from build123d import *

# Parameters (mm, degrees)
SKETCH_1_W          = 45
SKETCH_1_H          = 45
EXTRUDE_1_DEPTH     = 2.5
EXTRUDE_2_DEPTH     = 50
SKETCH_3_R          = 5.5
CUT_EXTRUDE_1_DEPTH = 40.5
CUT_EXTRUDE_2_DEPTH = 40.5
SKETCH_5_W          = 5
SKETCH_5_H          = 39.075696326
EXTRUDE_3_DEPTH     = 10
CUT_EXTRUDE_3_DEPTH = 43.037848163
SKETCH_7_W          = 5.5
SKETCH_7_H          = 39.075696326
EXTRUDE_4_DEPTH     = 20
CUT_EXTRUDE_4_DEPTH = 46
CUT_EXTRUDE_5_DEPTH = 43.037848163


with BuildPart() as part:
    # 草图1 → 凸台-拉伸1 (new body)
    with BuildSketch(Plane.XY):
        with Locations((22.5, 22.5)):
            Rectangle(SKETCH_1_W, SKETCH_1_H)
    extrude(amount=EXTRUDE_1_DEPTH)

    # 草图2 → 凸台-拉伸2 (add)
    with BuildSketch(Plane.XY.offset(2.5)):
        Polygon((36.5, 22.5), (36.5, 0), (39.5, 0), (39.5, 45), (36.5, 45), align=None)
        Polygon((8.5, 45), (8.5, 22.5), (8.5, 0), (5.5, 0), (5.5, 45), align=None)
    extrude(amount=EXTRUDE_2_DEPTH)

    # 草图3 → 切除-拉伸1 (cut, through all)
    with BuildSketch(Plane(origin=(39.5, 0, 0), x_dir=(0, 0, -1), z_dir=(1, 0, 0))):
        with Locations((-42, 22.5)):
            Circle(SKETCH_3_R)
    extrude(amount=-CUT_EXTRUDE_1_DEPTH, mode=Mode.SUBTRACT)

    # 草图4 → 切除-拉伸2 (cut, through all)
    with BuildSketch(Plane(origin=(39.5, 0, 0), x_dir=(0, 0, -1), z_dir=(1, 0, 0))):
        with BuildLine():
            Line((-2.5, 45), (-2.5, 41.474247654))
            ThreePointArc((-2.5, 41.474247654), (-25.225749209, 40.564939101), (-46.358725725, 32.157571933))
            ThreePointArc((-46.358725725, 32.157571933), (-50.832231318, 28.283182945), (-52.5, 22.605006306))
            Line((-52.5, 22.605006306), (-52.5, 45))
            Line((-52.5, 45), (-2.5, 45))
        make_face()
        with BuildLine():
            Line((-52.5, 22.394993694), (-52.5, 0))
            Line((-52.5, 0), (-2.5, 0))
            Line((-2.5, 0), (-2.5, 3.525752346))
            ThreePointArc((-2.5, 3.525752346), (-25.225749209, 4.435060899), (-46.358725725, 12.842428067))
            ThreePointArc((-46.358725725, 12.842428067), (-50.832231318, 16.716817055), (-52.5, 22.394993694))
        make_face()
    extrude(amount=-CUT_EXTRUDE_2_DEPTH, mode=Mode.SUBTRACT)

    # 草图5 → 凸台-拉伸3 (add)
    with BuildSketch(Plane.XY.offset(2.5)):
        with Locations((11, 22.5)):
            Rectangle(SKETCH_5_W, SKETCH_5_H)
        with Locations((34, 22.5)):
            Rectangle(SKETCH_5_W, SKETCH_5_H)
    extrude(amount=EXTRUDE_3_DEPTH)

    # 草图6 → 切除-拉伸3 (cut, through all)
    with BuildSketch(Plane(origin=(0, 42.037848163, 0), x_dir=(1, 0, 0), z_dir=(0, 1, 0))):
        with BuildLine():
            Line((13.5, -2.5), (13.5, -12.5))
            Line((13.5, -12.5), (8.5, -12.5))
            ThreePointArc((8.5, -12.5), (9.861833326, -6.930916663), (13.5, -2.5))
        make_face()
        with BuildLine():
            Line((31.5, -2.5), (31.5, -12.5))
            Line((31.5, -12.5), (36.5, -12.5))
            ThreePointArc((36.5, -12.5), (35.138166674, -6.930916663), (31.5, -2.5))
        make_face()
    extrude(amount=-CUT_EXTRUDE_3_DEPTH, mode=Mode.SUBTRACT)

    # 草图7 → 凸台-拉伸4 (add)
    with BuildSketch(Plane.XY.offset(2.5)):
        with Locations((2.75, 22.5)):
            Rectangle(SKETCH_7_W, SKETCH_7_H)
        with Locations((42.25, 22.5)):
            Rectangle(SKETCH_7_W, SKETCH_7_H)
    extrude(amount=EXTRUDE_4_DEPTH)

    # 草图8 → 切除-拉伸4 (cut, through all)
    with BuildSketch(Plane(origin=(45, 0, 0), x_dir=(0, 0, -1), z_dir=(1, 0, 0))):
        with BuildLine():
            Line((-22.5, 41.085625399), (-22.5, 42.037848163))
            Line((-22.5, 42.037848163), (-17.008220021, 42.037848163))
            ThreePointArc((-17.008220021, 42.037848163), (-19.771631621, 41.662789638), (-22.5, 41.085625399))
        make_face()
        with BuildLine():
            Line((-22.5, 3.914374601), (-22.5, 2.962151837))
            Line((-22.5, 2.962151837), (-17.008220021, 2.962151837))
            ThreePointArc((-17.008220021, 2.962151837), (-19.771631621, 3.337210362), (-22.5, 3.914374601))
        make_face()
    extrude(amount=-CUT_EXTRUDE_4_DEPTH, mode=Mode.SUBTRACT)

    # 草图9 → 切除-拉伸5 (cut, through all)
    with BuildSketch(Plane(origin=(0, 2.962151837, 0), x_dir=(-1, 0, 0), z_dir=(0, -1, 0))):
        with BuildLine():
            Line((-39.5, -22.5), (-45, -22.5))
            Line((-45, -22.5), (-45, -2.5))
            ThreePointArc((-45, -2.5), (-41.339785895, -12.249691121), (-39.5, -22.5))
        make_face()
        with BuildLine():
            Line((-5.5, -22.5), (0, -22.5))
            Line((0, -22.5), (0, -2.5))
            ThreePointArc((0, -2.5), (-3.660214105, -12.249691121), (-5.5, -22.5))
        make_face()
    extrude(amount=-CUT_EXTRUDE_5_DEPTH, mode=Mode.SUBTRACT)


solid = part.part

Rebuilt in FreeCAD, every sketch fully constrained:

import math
import FreeCAD as App
import Part
import Sketcher

V = App.Vector
Q = App.Units.Quantity


def add_polygon(sketch, points):
    """Adds a closed chain of lines whose ends are joined by coincident constraints."""
    first, n = sketch.GeometryCount, len(points)
    for a, b in zip(points, points[1:] + points[:1]):
        sketch.addGeometry(Part.LineSegment(App.Vector(*a, 0), App.Vector(*b, 0)), False)
    for i in range(n):
        sketch.addConstraint(Sketcher.Constraint("Coincident", first + i, 2, first + (i + 1) % n, 1))

doc = App.newDocument("Part")
body = doc.addObject("PartDesign::Body", "Body")

# Sketch on XY plane
sketch1 = doc.addObject("Sketcher::SketchObject", "Sketch")
body.addObject(sketch1)
sketch1.AttachmentSupport = (doc.XY_Plane, [""])
sketch1.MapMode = "FlatFace"
add_polygon(sketch1, [(0, 45), (0, 0), (45, 0), (45, 45)])  # lines 0-3
sketch1.addConstraint([
    Sketcher.Constraint("Vertical", 0),
    Sketcher.Constraint("Horizontal", 1),
    Sketcher.Constraint("Vertical", 2),
    Sketcher.Constraint("Horizontal", 3),
    Sketcher.Constraint("Coincident", 0, 2, -1, 1),
    Sketcher.Constraint("Equal", 3, 0),
    Sketcher.Constraint("DistanceX", 1, 1, 1, 2, Q("45 mm")),
])
pad1 = doc.addObject("PartDesign::Pad", "Pad")
body.addObject(pad1)
pad1.Profile = sketch1
pad1.Length = 2.5

# Sketch on XY plane
sketch2 = doc.addObject("Sketcher::SketchObject", "Sketch001")
body.addObject(sketch2)
sketch2.AttachmentSupport = (doc.XY_Plane, [""])
sketch2.MapMode = "FlatFace"
sketch2.AttachmentOffset = App.Placement(V(0, 0, 2.5), App.Rotation())
add_polygon(sketch2, [(36.5, 0), (39.5, 0), (39.5, 45), (36.5, 45)])  # lines 0-3
add_polygon(sketch2, [(8.5, 0), (8.5, 45), (5.5, 45), (5.5, 0)])  # lines 4-7
sketch2.addConstraint([
    Sketcher.Constraint("Horizontal", 0),
    Sketcher.Constraint("Vertical", 1),
    Sketcher.Constraint("Horizontal", 2),
    Sketcher.Constraint("Vertical", 3),
    Sketcher.Constraint("Vertical", 4),
    Sketcher.Constraint("Horizontal", 5),
    Sketcher.Constraint("Vertical", 6),
    Sketcher.Constraint("Horizontal", 7),
    Sketcher.Constraint("PointOnObject", 0, 2, -1),
    Sketcher.Constraint("PointOnObject", 6, 2, -1),
    Sketcher.Constraint("Horizontal", 2, 2, 4, 2),
    Sketcher.Constraint("Equal", 2, 5),
    Sketcher.Constraint("DistanceX", 0, 1, 0, 2, Q("3 mm")),
    Sketcher.Constraint("DistanceY", 1, 1, 1, 2, Q("45 mm")),
    Sketcher.Constraint("DistanceX", 4, 2, 2, 2, Q("28 mm")),
    Sketcher.Constraint("DistanceX", -1, 1, 0, 2, Q("39.5 mm")),
])
pad2 = doc.addObject("PartDesign::Pad", "Pad001")
body.addObject(pad2)
pad2.Profile = sketch2
pad2.Length = 50

# Sketch on YZ plane
sketch3 = doc.addObject("Sketcher::SketchObject", "Sketch002")
body.addObject(sketch3)
sketch3.AttachmentSupport = (doc.YZ_Plane, [""])
sketch3.MapMode = "FlatFace"
sketch3.AttachmentOffset = App.Placement(V(0, 0, 39.5), App.Rotation())
sketch3.addGeometry(Part.Circle(V(22, 42, 0), V(0, 0, 1), 6), False)
sketch3.addConstraint([
    Sketcher.Constraint("Diameter", 0, Q("11 mm")),
    Sketcher.Constraint("DistanceY", -1, 1, 0, 3, Q("42 mm")),
    Sketcher.Constraint("DistanceX", -1, 1, 0, 3, Q("22.5 mm")),
])
pocket1 = doc.addObject("PartDesign::Pocket", "Pocket")
body.addObject(pocket1)
pocket1.Profile = sketch3
pocket1.Type = "ThroughAll"

# Sketch on YZ plane
sketch4 = doc.addObject("Sketcher::SketchObject", "Sketch003")
body.addObject(sketch4)
sketch4.AttachmentSupport = (doc.YZ_Plane, [""])
sketch4.MapMode = "FlatFace"
sketch4.AttachmentOffset = App.Placement(V(0, 0, 39.5), App.Rotation())
sketch4.addGeometry([
    Part.LineSegment(V(41.474248, 2.5, 0), V(45, 2.5, 0)),  # 0
    Part.LineSegment(V(45, 2.5, 0), V(45, 52.5, 0)),  # 1
    Part.LineSegment(V(45, 52.5, 0), V(22.605006, 52.5, 0)),  # 2
    Part.ArcOfCircle(Part.Circle(V(22.605006, 42, 0), V(0, 0, 1), 10.5), math.radians(24.526668), math.radians(90)),  # 3
    Part.ArcOfCircle(Part.Circle(V(-25.445771, 11.203445, 0), V(0, 0, 1), 67.48362), math.radians(-7.410148), math.radians(31.395688)),  # 4
    Part.LineSegment(V(22.394994, 52.5, 0), V(0, 52.5, 0)),  # 5
    Part.LineSegment(V(0, 52.5, 0), V(0, 2.5, 0)),  # 6
    Part.LineSegment(V(0, 2.5, 0), V(3.525752, 2.5, 0)),  # 7
    Part.ArcOfCircle(Part.Circle(V(70.445771, 11.203445, 0), V(0, 0, 1), 67.48362), math.radians(148.604312), math.radians(187.410148)),  # 8
    Part.ArcOfCircle(Part.Circle(V(22.394994, 42, 0), V(0, 0, 1), 10.5), math.radians(90), math.radians(155.473332)),  # 9
], False)
sketch4.addConstraint([
    Sketcher.Constraint("Coincident", 0, 2, 1, 1),
    Sketcher.Constraint("Coincident", 1, 2, 2, 1),
    Sketcher.Constraint("Coincident", 2, 2, 3, 2),
    Sketcher.Constraint("Coincident", 3, 1, 4, 2),
    Sketcher.Constraint("Coincident", 4, 1, 0, 1),
    Sketcher.Constraint("Coincident", 5, 2, 6, 1),
    Sketcher.Constraint("Coincident", 6, 2, 7, 1),
    Sketcher.Constraint("Coincident", 7, 2, 8, 2),
    Sketcher.Constraint("Coincident", 8, 1, 9, 2),
    Sketcher.Constraint("Coincident", 9, 1, 5, 1),
    Sketcher.Constraint("Horizontal", 0),
    Sketcher.Constraint("Vertical", 1),
    Sketcher.Constraint("Horizontal", 2),
    Sketcher.Constraint("Horizontal", 5),
    Sketcher.Constraint("Vertical", 6),
    Sketcher.Constraint("Horizontal", 7),
    Sketcher.Constraint("PointOnObject", 5, 2, -2),
    Sketcher.Constraint("Radius", 3, Q("10.5 mm")),
    Sketcher.Constraint("Radius", 9, Q("10.5 mm")),
    Sketcher.Constraint("DistanceY", 1, 1, 1, 2, Q("50 mm")),
    Sketcher.Constraint("DistanceY", 6, 2, 6, 1, Q("50 mm")),
    Sketcher.Constraint("DistanceY", -1, 1, 3, 3, Q("42 mm")),
    Sketcher.Constraint("DistanceY", -1, 1, 9, 3, Q("42 mm")),
    Sketcher.Constraint("DistanceX", -1, 1, 0, 2, Q("45 mm")),
    Sketcher.Constraint("Radius", 4, Q("67.48362 mm")),
    Sketcher.Constraint("Radius", 8, Q("67.48362 mm")),
    Sketcher.Constraint("DistanceX", 0, 1, 0, 2, Q("3.525752 mm")),
    Sketcher.Constraint("DistanceX", 2, 2, 2, 1, Q("22.394994 mm")),
    Sketcher.Constraint("DistanceX", 5, 2, 5, 1, Q("22.394994 mm")),
    Sketcher.Constraint("DistanceX", 7, 1, 7, 2, Q("3.525752 mm")),
    Sketcher.Constraint("DistanceX", 4, 3, -1, 1, Q("25.445771 mm")),
    Sketcher.Constraint("DistanceX", -1, 1, 8, 3, Q("70.445771 mm")),
    Sketcher.Constraint("DistanceX", -1, 1, 3, 1, Q("32.157572 mm")),
    Sketcher.Constraint("DistanceX", -1, 1, 8, 1, Q("12.842428 mm")),
])
pocket2 = doc.addObject("PartDesign::Pocket", "Pocket001")
body.addObject(pocket2)
pocket2.Profile = sketch4
pocket2.Type = "ThroughAll"

# Sketch on XY plane
sketch5 = doc.addObject("Sketcher::SketchObject", "Sketch004")
body.addObject(sketch5)
sketch5.AttachmentSupport = (doc.XY_Plane, [""])
sketch5.MapMode = "FlatFace"
sketch5.AttachmentOffset = App.Placement(V(0, 0, 2.5), App.Rotation())
add_polygon(sketch5, [(8, 42), (8, 3), (14, 3), (14, 42)])  # lines 0-3
add_polygon(sketch5, [(32, 42), (32, 3), (36, 3), (36, 42)])  # lines 4-7
sketch5.addConstraint([
    Sketcher.Constraint("Vertical", 0),
    Sketcher.Constraint("Horizontal", 1),
    Sketcher.Constraint("Vertical", 2),
    Sketcher.Constraint("Horizontal", 3),
    Sketcher.Constraint("Vertical", 4),
    Sketcher.Constraint("Horizontal", 5),
    Sketcher.Constraint("Vertical", 6),
    Sketcher.Constraint("Horizontal", 7),
    Sketcher.Constraint("Horizontal", 1, 2, 4, 2),
    Sketcher.Constraint("Horizontal", 3, 2, 6, 2),
    Sketcher.Constraint("Equal", 3, 5),
    Sketcher.Constraint("DistanceX", 1, 1, 1, 2, Q("5 mm")),
    Sketcher.Constraint("DistanceX", 1, 2, 4, 2, Q("18 mm")),
    Sketcher.Constraint("DistanceX", -1, 1, 0, 2, Q("8.5 mm")),
    Sketcher.Constraint("DistanceY", 0, 2, 0, 1, Q("39.075696 mm")),
    Sketcher.Constraint("DistanceY", -1, 1, 0, 2, Q("2.962152 mm")),
])
pad3 = doc.addObject("PartDesign::Pad", "Pad002")
body.addObject(pad3)
pad3.Profile = sketch5
pad3.Length = 10

# Sketch on XZ plane
sketch6 = doc.addObject("Sketcher::SketchObject", "Sketch005")
body.addObject(sketch6)
sketch6.AttachmentSupport = (doc.XZ_Plane, [""])
sketch6.MapMode = "FlatFace"
sketch6.AttachmentOffset = App.Placement(V(0, 0, -42.037848), App.Rotation())
sketch6.addGeometry([
    Part.LineSegment(V(14, 12, 0), V(14, 2, 0)),  # 0
    Part.ArcOfCircle(Part.Circle(V(21, 13, 0), V(0, 0, 1), 13), math.radians(-179), math.radians(-128)),  # 1
    Part.LineSegment(V(8, 12, 0), V(14, 12, 0)),  # 2
    Part.LineSegment(V(32, 2, 0), V(32, 12, 0)),  # 3
    Part.LineSegment(V(32, 12, 0), V(36, 12, 0)),  # 4
    Part.ArcOfCircle(Part.Circle(V(24, 13, 0), V(0, 0, 1), 13), math.radians(-52), math.radians(-1)),  # 5
], False)
sketch6.addConstraint([
    Sketcher.Constraint("Coincident", 0, 2, 1, 2),
    Sketcher.Constraint("Coincident", 1, 1, 2, 1),
    Sketcher.Constraint("Coincident", 2, 2, 0, 1),
    Sketcher.Constraint("Coincident", 3, 2, 4, 1),
    Sketcher.Constraint("Coincident", 4, 2, 5, 2),
    Sketcher.Constraint("Coincident", 5, 1, 3, 1),
    Sketcher.Constraint("Vertical", 0),
    Sketcher.Constraint("Horizontal", 2),
    Sketcher.Constraint("Vertical", 3),
    Sketcher.Constraint("Horizontal", 4),
    Sketcher.Constraint("Equal", 1, 5),
    Sketcher.Constraint("Horizontal", 1, 3, 5, 3),
    Sketcher.Constraint("Horizontal", 2, 2, 3, 2),
    Sketcher.Constraint("Horizontal", 0, 2, 5, 1),
    Sketcher.Constraint("DistanceX", 2, 1, 2, 2, Q("5 mm")),
    Sketcher.Constraint("DistanceY", 0, 2, 0, 1, Q("10 mm")),
    Sketcher.Constraint("DistanceX", 2, 2, 3, 2, Q("18 mm")),
    Sketcher.Constraint("DistanceX", -1, 1, 0, 2, Q("13.5 mm")),
    Sketcher.Constraint("DistanceY", -1, 1, 0, 2, Q("2.5 mm")),
    Sketcher.Constraint("Radius", 1, Q("12.915146 mm")),
])
pocket3 = doc.addObject("PartDesign::Pocket", "Pocket002")
body.addObject(pocket3)
pocket3.Profile = sketch6
pocket3.Type = "ThroughAll"
pocket3.Reversed = True

# Sketch on XY plane
sketch7 = doc.addObject("Sketcher::SketchObject", "Sketch006")
body.addObject(sketch7)
sketch7.AttachmentSupport = (doc.XY_Plane, [""])
sketch7.MapMode = "FlatFace"
sketch7.AttachmentOffset = App.Placement(V(0, 0, 2.5), App.Rotation())
add_polygon(sketch7, [(0, 42), (0, 3), (6, 3), (6, 42)])  # lines 0-3
add_polygon(sketch7, [(40, 42), (40, 3), (45, 3), (45, 42)])  # lines 4-7
sketch7.addConstraint([
    Sketcher.Constraint("Vertical", 0),
    Sketcher.Constraint("Horizontal", 1),
    Sketcher.Constraint("Vertical", 2),
    Sketcher.Constraint("Horizontal", 3),
    Sketcher.Constraint("Vertical", 4),
    Sketcher.Constraint("Horizontal", 5),
    Sketcher.Constraint("Vertical", 6),
    Sketcher.Constraint("Horizontal", 7),
    Sketcher.Constraint("PointOnObject", 0, 2, -2),
    Sketcher.Constraint("Horizontal", 1, 2, 4, 2),
    Sketcher.Constraint("Horizontal", 3, 2, 6, 2),
    Sketcher.Constraint("Equal", 3, 5),
    Sketcher.Constraint("DistanceX", 1, 1, 1, 2, Q("5.5 mm")),
    Sketcher.Constraint("DistanceX", -1, 1, 5, 2, Q("45 mm")),
    Sketcher.Constraint("DistanceY", 0, 2, 0, 1, Q("39.075696 mm")),
    Sketcher.Constraint("DistanceY", -1, 1, 0, 2, Q("2.962152 mm")),
])
pad4 = doc.addObject("PartDesign::Pad", "Pad003")
body.addObject(pad4)
pad4.Profile = sketch7
pad4.Length = 20

# Sketch on YZ plane
sketch8 = doc.addObject("Sketcher::SketchObject", "Sketch007")
body.addObject(sketch8)
sketch8.AttachmentSupport = (doc.YZ_Plane, [""])
sketch8.MapMode = "FlatFace"
sketch8.AttachmentOffset = App.Placement(V(0, 0, 45), App.Rotation())
sketch8.addGeometry([
    Part.LineSegment(V(42, 22.5, 0), V(41.1, 22.5, 0)),  # 0
    Part.ArcOfCircle(Part.Circle(V(4.3, 13.3, 0), V(0, 0, 1), 37.9), math.radians(5.62), math.radians(14.05)),  # 1
    Part.LineSegment(V(42, 17, 0), V(42, 22.5, 0)),  # 2
    Part.LineSegment(V(3.9, 22.5, 0), V(3, 22.5, 0)),  # 3
    Part.LineSegment(V(3, 22.5, 0), V(3, 17, 0)),  # 4
    Part.ArcOfCircle(Part.Circle(V(40.7, 13.3, 0), V(0, 0, 1), 37.9), math.radians(165.95), math.radians(174.38)),  # 5
], False)
sketch8.addConstraint([
    Sketcher.Constraint("Coincident", 0, 2, 1, 2),
    Sketcher.Constraint("Coincident", 1, 1, 2, 1),
    Sketcher.Constraint("Coincident", 2, 2, 0, 1),
    Sketcher.Constraint("Coincident", 3, 2, 4, 1),
    Sketcher.Constraint("Coincident", 4, 2, 5, 2),
    Sketcher.Constraint("Coincident", 5, 1, 3, 1),
    Sketcher.Constraint("Horizontal", 0),
    Sketcher.Constraint("Vertical", 2),
    Sketcher.Constraint("Horizontal", 3),
    Sketcher.Constraint("Vertical", 4),
    Sketcher.Constraint("Equal", 1, 5),
    Sketcher.Constraint("Horizontal", 1, 3, 5, 3),
    Sketcher.Constraint("Horizontal", 2, 2, 3, 2),
    Sketcher.Constraint("Horizontal", 1, 1, 4, 2),
    Sketcher.Constraint("DistanceY", -1, 1, 0, 2, Q("22.5 mm")),
    Sketcher.Constraint("Radius", 1, Q("37.9147 mm")),
    Sketcher.Constraint("DistanceY", 2, 1, 2, 2, Q("5.49178 mm")),
    Sketcher.Constraint("DistanceX", 0, 2, 0, 1, Q("0.952223 mm")),
    Sketcher.Constraint("DistanceX", -1, 1, 1, 3, Q("4.305491 mm")),
    Sketcher.Constraint("DistanceX", -1, 1, 5, 3, Q("40.694509 mm")),
])
pocket4 = doc.addObject("PartDesign::Pocket", "Pocket003")
body.addObject(pocket4)
pocket4.Profile = sketch8
pocket4.Type = "ThroughAll"

# Sketch on XZ plane
sketch9 = doc.addObject("Sketcher::SketchObject", "Sketch008")
body.addObject(sketch9)
sketch9.AttachmentSupport = (doc.XZ_Plane, [""])
sketch9.MapMode = "FlatFace"
sketch9.AttachmentOffset = App.Placement(V(0, 0, -2.962152), App.Rotation())
sketch9.addGeometry([
    Part.LineSegment(V(45, 22, 0), V(40, 22, 0)),  # 0
    Part.ArcOfCircle(Part.Circle(V(97, 27, 0), V(0, 0, 1), 57), math.radians(-175), math.radians(-154)),  # 1
    Part.LineSegment(V(45, 2, 0), V(45, 22, 0)),  # 2
    Part.LineSegment(V(6, 22, 0), V(0, 22, 0)),  # 3
    Part.LineSegment(V(0, 22, 0), V(0, 2, 0)),  # 4
    Part.ArcOfCircle(Part.Circle(V(-52, 27, 0), V(0, 0, 1), 57), math.radians(-26), math.radians(-5)),  # 5
], False)
sketch9.addConstraint([
    Sketcher.Constraint("Coincident", 0, 2, 1, 1),
    Sketcher.Constraint("Coincident", 1, 2, 2, 1),
    Sketcher.Constraint("Coincident", 2, 2, 0, 1),
    Sketcher.Constraint("Coincident", 3, 2, 4, 1),
    Sketcher.Constraint("Coincident", 4, 2, 5, 1),
    Sketcher.Constraint("Coincident", 5, 2, 3, 1),
    Sketcher.Constraint("Horizontal", 0),
    Sketcher.Constraint("Vertical", 2),
    Sketcher.Constraint("Horizontal", 3),
    Sketcher.Constraint("Vertical", 4),
    Sketcher.Constraint("Equal", 1, 5),
    Sketcher.Constraint("PointOnObject", 3, 2, -2),
    Sketcher.Constraint("Horizontal", 1, 3, 5, 3),
    Sketcher.Constraint("Horizontal", 2, 2, 3, 2),
    Sketcher.Constraint("Horizontal", 1, 2, 4, 2),
    Sketcher.Constraint("DistanceY", 2, 1, 2, 2, Q("20 mm")),
    Sketcher.Constraint("DistanceX", 0, 2, 0, 1, Q("5.5 mm")),
    Sketcher.Constraint("DistanceX", -1, 1, 1, 2, Q("45 mm")),
    Sketcher.Constraint("DistanceY", -1, 1, 0, 2, Q("22.5 mm")),
    Sketcher.Constraint("Radius", 1, Q("57.443402 mm")),
])
pocket5 = doc.addObject("PartDesign::Pocket", "Pocket004")
body.addObject(pocket5)
pocket5.Profile = sketch9
pocket5.Type = "ThroughAll"

doc.recompute()
